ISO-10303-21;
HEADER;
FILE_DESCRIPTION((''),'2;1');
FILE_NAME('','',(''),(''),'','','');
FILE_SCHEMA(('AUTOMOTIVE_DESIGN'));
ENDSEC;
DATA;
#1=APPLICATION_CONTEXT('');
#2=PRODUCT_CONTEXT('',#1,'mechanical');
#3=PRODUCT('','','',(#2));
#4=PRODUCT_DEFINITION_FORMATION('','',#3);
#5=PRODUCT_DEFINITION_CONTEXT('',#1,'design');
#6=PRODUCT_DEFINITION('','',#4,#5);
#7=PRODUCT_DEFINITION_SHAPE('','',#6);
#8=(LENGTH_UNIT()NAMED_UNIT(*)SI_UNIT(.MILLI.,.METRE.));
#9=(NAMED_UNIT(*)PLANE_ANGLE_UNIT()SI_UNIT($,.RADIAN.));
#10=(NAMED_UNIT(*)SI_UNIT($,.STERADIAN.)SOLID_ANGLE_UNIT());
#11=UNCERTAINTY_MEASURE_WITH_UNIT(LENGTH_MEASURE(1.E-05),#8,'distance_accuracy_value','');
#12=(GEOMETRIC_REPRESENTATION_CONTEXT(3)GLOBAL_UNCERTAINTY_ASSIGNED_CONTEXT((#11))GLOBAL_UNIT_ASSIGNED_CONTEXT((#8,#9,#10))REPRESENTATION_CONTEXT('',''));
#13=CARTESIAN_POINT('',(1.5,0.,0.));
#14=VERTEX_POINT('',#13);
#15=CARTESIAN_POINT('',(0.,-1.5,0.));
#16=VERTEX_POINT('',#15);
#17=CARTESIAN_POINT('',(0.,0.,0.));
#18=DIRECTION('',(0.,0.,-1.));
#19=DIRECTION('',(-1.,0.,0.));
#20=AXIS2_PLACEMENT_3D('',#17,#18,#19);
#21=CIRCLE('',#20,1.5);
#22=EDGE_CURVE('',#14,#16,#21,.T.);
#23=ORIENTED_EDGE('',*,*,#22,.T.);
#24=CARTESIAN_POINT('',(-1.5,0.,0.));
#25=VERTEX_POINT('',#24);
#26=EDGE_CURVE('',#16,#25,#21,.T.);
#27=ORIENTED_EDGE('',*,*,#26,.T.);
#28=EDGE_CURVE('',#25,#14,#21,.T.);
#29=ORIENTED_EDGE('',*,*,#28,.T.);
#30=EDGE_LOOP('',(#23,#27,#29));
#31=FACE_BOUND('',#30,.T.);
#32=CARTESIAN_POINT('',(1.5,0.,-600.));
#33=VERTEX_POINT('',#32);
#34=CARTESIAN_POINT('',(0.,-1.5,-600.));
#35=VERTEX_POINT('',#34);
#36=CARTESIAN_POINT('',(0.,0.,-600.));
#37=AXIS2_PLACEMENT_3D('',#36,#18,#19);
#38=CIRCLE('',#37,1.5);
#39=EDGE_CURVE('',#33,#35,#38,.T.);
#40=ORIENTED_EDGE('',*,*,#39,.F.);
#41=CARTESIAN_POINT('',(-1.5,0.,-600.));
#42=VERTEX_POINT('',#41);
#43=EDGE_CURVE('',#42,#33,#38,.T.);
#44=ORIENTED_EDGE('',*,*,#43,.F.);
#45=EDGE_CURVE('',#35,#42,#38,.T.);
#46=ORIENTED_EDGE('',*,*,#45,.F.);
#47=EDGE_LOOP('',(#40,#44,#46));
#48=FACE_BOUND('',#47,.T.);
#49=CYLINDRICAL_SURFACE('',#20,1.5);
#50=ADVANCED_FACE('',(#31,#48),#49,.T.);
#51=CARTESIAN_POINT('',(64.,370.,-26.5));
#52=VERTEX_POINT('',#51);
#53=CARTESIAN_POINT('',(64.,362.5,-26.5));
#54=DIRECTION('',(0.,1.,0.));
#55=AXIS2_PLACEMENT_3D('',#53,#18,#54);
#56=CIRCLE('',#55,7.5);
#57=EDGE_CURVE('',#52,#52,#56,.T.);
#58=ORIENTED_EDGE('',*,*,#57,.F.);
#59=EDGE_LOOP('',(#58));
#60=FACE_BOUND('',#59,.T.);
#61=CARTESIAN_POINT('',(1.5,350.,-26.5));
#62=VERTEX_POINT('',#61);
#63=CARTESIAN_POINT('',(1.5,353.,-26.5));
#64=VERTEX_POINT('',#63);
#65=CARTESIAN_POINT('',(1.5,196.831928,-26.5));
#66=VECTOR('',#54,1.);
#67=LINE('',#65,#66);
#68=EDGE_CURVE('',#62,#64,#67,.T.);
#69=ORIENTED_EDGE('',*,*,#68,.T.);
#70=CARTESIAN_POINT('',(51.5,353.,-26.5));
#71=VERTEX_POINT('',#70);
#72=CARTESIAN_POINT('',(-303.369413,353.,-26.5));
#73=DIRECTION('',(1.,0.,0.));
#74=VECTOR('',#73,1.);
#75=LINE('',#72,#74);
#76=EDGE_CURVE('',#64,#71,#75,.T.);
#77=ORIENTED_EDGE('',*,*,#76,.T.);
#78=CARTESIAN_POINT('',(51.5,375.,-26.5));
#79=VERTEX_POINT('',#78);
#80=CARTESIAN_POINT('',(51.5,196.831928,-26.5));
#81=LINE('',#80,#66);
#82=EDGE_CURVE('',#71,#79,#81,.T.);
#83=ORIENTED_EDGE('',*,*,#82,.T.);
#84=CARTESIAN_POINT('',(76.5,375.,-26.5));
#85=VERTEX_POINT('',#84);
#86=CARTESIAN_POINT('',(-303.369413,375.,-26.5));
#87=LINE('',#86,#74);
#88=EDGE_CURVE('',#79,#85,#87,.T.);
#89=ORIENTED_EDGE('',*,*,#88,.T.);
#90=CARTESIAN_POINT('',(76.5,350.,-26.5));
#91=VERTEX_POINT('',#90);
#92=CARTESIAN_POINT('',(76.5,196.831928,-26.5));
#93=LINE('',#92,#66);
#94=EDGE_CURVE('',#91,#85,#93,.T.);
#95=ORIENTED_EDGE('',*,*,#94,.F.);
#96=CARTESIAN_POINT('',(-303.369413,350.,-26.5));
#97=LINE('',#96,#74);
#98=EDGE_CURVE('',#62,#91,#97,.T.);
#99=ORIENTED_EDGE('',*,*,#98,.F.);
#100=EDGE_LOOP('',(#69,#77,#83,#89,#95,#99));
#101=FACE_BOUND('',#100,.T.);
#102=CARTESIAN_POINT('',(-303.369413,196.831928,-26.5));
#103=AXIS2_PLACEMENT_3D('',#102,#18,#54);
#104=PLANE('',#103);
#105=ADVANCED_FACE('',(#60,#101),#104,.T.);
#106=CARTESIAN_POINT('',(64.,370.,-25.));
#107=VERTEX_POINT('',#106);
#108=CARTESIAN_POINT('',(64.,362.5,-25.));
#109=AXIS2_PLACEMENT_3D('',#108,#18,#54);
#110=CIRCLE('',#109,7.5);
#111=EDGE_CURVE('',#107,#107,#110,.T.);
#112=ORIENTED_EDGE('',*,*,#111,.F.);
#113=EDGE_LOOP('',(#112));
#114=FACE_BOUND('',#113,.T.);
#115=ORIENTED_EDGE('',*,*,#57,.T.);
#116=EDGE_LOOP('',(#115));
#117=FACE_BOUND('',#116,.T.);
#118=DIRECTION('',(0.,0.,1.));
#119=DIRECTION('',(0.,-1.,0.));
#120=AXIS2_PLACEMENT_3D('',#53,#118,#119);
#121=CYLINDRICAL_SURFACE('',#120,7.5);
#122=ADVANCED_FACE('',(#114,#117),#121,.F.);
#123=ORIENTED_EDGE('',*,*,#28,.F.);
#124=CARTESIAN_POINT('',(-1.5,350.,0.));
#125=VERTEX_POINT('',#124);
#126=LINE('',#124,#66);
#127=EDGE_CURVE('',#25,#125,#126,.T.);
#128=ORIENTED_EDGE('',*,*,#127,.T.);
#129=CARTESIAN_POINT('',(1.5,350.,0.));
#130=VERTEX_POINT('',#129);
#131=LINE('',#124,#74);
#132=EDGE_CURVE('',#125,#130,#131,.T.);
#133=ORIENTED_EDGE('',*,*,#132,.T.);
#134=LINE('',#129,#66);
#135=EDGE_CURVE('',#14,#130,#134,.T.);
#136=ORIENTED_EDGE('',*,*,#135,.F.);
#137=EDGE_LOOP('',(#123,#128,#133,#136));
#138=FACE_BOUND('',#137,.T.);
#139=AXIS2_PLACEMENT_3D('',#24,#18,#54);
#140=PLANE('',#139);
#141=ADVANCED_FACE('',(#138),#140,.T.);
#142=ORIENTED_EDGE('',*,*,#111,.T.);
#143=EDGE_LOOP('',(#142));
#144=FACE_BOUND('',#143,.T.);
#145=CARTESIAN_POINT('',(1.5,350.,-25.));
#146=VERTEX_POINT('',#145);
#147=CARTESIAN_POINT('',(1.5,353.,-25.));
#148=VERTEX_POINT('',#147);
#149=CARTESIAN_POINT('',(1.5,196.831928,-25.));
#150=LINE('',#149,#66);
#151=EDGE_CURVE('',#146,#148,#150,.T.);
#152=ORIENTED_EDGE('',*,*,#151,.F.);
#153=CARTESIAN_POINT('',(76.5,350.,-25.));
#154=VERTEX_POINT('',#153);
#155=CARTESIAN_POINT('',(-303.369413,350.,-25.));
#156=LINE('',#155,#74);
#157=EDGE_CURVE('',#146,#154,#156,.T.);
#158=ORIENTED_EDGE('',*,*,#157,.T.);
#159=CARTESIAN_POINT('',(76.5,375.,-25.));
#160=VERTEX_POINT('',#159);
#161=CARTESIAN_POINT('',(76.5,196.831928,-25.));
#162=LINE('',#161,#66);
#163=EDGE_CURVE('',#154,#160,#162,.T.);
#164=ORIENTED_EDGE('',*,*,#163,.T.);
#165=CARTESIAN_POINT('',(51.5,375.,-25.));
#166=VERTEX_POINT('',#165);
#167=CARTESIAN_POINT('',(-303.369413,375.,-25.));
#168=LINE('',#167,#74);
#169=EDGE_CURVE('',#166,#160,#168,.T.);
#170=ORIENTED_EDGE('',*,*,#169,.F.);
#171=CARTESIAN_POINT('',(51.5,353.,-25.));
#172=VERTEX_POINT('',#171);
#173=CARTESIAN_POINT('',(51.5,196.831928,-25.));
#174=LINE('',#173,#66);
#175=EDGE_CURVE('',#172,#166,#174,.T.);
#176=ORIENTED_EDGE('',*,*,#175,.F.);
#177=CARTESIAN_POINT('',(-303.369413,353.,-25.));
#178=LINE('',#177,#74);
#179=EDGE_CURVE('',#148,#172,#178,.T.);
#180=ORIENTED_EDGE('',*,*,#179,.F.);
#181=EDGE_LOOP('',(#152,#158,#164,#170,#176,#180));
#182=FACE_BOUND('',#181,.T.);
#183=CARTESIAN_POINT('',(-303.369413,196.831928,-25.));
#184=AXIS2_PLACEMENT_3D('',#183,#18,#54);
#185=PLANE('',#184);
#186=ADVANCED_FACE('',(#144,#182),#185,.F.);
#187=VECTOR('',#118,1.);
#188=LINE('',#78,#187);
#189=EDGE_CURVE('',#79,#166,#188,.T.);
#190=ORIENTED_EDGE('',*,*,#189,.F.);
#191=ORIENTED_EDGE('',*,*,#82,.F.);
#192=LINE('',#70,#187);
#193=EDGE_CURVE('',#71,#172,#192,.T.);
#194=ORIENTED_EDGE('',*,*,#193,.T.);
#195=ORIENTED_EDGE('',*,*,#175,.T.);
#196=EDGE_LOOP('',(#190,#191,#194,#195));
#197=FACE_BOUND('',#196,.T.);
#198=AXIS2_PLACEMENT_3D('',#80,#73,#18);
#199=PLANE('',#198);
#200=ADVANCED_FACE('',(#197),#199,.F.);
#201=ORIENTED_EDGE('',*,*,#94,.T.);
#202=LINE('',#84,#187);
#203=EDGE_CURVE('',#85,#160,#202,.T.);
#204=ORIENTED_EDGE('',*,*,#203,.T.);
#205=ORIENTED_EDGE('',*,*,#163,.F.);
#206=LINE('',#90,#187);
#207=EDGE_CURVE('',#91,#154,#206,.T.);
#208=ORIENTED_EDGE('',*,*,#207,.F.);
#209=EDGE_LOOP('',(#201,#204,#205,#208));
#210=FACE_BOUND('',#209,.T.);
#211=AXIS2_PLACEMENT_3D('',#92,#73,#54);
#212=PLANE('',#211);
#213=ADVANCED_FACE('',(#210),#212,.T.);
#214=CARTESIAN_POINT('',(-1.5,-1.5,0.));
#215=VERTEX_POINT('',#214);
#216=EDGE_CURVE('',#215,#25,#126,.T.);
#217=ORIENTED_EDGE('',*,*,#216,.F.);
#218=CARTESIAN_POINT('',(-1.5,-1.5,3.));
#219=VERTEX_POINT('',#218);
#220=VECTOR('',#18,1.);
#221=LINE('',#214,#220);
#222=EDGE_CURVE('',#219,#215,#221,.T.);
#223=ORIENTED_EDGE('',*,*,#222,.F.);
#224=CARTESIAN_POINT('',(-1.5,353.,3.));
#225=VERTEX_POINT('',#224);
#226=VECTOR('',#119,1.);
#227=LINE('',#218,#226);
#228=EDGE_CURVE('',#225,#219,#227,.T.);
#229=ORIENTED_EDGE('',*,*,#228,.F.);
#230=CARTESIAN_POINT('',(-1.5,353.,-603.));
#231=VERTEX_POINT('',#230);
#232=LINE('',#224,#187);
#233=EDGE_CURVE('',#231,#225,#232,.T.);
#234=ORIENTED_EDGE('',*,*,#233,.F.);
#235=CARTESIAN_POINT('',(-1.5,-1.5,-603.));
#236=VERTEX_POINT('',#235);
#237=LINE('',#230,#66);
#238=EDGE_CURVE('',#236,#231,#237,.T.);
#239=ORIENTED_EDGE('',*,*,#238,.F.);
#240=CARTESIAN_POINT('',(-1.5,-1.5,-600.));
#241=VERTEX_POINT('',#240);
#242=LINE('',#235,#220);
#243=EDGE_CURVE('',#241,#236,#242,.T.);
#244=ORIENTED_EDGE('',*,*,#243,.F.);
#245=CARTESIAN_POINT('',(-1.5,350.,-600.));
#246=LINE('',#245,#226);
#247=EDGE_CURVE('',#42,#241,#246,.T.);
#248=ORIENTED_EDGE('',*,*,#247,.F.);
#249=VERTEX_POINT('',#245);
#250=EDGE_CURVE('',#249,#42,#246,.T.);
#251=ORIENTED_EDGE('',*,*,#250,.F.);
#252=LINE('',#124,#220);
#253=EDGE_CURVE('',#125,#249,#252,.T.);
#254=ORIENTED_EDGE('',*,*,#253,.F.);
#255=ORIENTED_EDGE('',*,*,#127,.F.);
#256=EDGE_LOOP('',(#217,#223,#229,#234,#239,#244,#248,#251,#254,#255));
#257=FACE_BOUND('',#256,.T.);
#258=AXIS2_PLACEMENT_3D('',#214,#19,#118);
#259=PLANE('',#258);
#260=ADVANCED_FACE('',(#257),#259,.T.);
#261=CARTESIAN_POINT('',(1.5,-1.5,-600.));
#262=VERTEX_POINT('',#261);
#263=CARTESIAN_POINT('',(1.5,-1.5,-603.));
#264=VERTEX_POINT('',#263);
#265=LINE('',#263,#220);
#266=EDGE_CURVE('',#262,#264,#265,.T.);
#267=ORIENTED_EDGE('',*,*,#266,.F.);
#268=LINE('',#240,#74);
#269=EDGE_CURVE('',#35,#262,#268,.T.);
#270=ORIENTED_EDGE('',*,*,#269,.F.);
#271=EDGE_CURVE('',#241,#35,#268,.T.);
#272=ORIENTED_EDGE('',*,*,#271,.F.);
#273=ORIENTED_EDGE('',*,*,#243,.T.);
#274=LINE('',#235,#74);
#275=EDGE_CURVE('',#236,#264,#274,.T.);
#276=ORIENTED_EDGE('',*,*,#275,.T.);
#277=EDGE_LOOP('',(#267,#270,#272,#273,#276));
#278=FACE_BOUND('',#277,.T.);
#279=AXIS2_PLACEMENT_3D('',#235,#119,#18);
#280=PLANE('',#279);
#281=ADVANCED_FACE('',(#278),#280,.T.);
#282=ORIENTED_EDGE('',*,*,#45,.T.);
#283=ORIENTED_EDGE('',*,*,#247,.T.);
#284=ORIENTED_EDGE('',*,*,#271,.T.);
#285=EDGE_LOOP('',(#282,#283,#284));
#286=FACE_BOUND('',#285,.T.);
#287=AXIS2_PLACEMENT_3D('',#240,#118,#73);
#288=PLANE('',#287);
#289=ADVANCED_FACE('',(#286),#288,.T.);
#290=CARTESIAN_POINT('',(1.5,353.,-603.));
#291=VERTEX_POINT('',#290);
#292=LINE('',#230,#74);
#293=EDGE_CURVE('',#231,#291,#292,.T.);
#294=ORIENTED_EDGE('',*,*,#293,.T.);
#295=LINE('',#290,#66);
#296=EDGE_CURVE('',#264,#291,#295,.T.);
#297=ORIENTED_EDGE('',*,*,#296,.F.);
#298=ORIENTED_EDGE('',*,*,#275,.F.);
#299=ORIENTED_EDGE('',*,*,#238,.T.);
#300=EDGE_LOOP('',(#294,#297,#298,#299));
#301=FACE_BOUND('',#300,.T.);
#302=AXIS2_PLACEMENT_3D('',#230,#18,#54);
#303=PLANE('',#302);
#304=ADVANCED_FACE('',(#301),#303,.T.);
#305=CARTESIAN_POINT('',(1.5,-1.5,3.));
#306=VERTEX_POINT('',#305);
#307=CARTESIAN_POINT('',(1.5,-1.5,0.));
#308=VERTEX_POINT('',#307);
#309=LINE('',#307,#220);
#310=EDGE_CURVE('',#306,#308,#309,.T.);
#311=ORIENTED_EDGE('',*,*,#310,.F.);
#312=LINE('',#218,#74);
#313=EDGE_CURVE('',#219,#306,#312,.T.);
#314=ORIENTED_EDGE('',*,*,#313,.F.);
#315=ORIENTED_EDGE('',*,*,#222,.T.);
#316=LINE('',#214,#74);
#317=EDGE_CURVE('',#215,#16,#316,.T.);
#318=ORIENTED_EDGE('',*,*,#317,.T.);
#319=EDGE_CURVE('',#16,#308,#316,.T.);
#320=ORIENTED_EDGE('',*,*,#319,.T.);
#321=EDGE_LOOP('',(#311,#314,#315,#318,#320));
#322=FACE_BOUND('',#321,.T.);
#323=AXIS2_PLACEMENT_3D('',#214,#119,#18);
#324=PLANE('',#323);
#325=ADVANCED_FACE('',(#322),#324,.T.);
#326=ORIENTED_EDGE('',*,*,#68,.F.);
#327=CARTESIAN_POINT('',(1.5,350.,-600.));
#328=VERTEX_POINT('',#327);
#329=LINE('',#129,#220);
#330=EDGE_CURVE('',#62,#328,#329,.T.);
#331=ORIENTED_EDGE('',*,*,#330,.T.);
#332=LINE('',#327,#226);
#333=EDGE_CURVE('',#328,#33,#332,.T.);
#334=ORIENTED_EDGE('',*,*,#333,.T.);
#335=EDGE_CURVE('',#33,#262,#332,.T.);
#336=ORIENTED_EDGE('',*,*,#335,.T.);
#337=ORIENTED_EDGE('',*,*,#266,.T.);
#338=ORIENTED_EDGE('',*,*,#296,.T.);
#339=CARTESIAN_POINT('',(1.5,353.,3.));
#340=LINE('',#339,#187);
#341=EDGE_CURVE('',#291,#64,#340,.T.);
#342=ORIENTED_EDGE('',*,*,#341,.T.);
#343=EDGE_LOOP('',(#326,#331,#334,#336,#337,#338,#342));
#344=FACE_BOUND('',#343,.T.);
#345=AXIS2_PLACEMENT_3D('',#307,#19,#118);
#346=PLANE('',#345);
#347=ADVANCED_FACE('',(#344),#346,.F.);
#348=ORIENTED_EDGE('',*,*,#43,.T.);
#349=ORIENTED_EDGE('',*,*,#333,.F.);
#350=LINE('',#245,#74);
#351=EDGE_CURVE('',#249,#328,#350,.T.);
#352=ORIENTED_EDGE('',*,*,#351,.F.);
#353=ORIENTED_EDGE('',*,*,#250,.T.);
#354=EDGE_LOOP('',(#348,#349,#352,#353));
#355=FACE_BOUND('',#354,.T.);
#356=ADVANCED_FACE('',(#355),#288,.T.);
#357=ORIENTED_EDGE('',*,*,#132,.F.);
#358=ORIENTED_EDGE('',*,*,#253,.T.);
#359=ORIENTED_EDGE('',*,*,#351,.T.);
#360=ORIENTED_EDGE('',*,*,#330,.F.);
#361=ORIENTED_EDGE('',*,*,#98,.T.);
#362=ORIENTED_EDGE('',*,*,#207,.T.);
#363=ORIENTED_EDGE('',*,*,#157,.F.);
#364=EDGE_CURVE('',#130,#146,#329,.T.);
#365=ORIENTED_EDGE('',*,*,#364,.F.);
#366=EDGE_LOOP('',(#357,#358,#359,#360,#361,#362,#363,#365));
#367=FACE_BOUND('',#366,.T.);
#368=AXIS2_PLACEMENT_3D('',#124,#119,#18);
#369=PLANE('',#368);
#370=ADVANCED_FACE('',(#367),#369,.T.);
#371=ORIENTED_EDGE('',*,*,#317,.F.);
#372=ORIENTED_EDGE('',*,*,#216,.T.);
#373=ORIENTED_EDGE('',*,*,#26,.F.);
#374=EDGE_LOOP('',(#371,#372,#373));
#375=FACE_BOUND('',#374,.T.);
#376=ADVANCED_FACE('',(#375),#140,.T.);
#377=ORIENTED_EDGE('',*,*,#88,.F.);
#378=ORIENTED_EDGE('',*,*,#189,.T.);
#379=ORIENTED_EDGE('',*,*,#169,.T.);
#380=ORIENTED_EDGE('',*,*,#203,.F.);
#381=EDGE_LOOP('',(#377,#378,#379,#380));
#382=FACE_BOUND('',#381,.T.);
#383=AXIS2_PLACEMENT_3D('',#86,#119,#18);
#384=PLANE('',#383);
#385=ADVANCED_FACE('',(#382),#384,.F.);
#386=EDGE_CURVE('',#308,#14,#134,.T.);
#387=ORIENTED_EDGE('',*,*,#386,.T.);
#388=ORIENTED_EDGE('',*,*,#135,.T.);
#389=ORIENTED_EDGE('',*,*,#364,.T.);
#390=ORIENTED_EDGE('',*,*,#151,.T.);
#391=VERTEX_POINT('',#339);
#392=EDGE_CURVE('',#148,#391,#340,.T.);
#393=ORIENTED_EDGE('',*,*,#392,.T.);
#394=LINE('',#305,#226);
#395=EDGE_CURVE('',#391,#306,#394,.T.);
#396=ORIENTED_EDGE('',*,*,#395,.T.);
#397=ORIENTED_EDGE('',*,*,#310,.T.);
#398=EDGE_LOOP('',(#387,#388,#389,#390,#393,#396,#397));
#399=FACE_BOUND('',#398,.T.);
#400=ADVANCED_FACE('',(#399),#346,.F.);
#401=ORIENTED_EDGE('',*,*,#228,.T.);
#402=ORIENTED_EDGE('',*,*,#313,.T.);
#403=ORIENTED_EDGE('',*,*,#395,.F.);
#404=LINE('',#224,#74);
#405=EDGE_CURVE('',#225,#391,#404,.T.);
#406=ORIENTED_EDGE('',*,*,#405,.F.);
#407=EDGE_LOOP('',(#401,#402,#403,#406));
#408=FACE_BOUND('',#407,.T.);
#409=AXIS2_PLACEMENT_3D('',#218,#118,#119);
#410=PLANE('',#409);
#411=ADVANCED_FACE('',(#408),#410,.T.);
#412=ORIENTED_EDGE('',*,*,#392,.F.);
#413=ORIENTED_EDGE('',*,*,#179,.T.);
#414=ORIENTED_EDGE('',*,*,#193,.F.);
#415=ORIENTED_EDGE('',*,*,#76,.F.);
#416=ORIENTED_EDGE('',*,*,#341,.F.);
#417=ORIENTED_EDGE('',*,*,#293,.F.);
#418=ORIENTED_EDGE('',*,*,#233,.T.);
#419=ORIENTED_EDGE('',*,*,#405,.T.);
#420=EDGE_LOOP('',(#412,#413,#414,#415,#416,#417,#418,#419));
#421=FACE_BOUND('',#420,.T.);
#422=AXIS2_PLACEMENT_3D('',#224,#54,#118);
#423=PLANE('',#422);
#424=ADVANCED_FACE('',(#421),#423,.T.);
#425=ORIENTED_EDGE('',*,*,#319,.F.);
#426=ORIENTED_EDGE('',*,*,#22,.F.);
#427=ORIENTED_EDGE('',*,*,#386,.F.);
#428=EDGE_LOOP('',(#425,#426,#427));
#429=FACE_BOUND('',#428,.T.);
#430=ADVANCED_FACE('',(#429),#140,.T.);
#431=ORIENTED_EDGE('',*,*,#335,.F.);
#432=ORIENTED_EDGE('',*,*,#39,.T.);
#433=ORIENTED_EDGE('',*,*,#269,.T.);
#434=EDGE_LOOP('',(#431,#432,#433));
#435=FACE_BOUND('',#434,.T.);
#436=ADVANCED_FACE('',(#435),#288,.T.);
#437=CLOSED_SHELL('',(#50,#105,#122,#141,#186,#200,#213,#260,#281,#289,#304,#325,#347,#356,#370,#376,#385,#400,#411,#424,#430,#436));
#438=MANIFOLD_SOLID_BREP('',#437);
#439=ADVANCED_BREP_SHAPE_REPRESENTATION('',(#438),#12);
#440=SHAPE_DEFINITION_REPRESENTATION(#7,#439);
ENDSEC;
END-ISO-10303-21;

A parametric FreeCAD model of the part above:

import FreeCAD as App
import Part
import Sketcher
Q = App.Units.Quantity

doc = App.newDocument("Part")
params = doc.addObject("Spreadsheet::Sheet", "Params")
for row, (alias, value) in enumerate([
    ("sketch1_diameter", "3 mm"),
    ("pad1_length", "600 mm"),
    ("sketch2_height", "600 mm"),
    ("sketch2_height2", "3 mm"),
    ("sketch2_width", "351.5 mm"),
    ("sketch2_width2", "354.5 mm"),
    ("pad2_length", "1.5 mm"),
    ("pad2_length2", "1.5 mm"),
    ("sketch3_diameter", "15 mm"),
    ("sketch3_width", "50 mm"),
    ("sketch3_width2", "25 mm"),
    ("sketch3_height", "3 mm"),
    ("pad3_length", "1.5 mm"),
], start=1):
    params.set(f"A{row}", alias)
    params.set(f"B{row}", "=" + value)
    params.setAlias(f"B{row}", alias)

body = doc.addObject("PartDesign::Body", "Body")

# Sketch on XY plane
sketch1 = body.newObject("Sketcher::SketchObject", "Sketch")
sketch1.AttachmentSupport = (doc.getObject("XY_Plane"), [""])
sketch1.MapMode = "FlatFace"
sketch1.AttachmentOffset = App.Placement(App.Vector(0, 0, -600), App.Rotation())
sketch1.addGeometry(Part.Circle(App.Vector(0, 0, 0), App.Vector(0, 0, 1), 1.5), False)
sketch1.addConstraint([
    Sketcher.Constraint("Coincident", 0, 3, -1, 1),
    Sketcher.Constraint("Diameter", 0, Q("3 mm")),
])
sketch1.setExpression("Constraints[1]", "Params.sketch1_diameter")
pad1 = body.newObject("PartDesign::Pad", "Pad")
pad1.Profile = sketch1
pad1.setExpression("Length", "Params.pad1_length")

# Sketch on YZ plane
sketch2 = body.newObject("Sketcher::SketchObject", "Sketch001")
sketch2.AttachmentSupport = (doc.getObject("YZ_Plane"), [""])
sketch2.MapMode = "FlatFace"
sketch2.addGeometry([
    Part.LineSegment(App.Vector(-1.5, 0, 0), App.Vector(350, 0, 0)),  # 0
    Part.LineSegment(App.Vector(350, 0, 0), App.Vector(350, -600, 0)),  # 1
    Part.LineSegment(App.Vector(350, -600, 0), App.Vector(-1.5, -600, 0)),  # 2
    Part.LineSegment(App.Vector(-1.5, -600, 0), App.Vector(-1.5, -603, 0)),  # 3
    Part.LineSegment(App.Vector(-1.5, -603, 0), App.Vector(353, -603, 0)),  # 4
    Part.LineSegment(App.Vector(353, -603, 0), App.Vector(353, 3, 0)),  # 5
    Part.LineSegment(App.Vector(353, 3, 0), App.Vector(-1.5, 3, 0)),  # 6
    Part.LineSegment(App.Vector(-1.5, 3, 0), App.Vector(-1.5, 0, 0)),  # 7
], False)
sketch2.addConstraint([
    Sketcher.Constraint("Coincident", 0, 2, 1, 1),
    Sketcher.Constraint("Coincident", 1, 2, 2, 1),
    Sketcher.Constraint("Coincident", 2, 2, 3, 1),
    Sketcher.Constraint("Coincident", 3, 2, 4, 1),
    Sketcher.Constraint("Coincident", 4, 2, 5, 1),
    Sketcher.Constraint("Coincident", 5, 2, 6, 1),
    Sketcher.Constraint("Coincident", 6, 2, 7, 1),
    Sketcher.Constraint("Coincident", 7, 2, 0, 1),
    Sketcher.Constraint("Horizontal", 0),
    Sketcher.Constraint("Vertical", 1),
    Sketcher.Constraint("Horizontal", 2),
    Sketcher.Constraint("Vertical", 3),
    Sketcher.Constraint("Horizontal", 4),
    Sketcher.Constraint("Vertical", 5),
    Sketcher.Constraint("Horizontal", 6),
    Sketcher.Constraint("Vertical", 7),
    Sketcher.Constraint("PointOnObject", 0, 2, -1),
    Sketcher.Constraint("Vertical", 3, 2, 6, 2),
    Sketcher.Constraint("Equal", 3, 7),
    Sketcher.Constraint("DistanceY", 1, 2, 1, 1, Q("600 mm")),
    Sketcher.Constraint("DistanceY", 3, 2, 3, 1, Q("3 mm")),
    Sketcher.Constraint("DistanceX", 0, 1, 0, 2, Q("351.5 mm")),
    Sketcher.Constraint("DistanceX", 4, 1, 4, 2, Q("354.5 mm")),
    Sketcher.Constraint("DistanceX", -1, 1, 0, 2, Q("350 mm")),
])
sketch2.setExpression("Constraints[19]", "Params.sketch2_height")
sketch2.setExpression("Constraints[20]", "Params.sketch2_height2")
sketch2.setExpression("Constraints[21]", "Params.sketch2_width")
sketch2.setExpression("Constraints[22]", "Params.sketch2_width2")
pad2 = body.newObject("PartDesign::Pad", "Pad001")
pad2.Profile = sketch2
pad2.Type = "TwoLengths"
pad2.setExpression("Length", "Params.pad2_length")
pad2.setExpression("Length2", "Params.pad2_length2")

# Sketch on XY plane
sketch3 = body.newObject("Sketcher::SketchObject", "Sketch002")
sketch3.AttachmentSupport = (doc.getObject("XY_Plane"), [""])
sketch3.MapMode = "FlatFace"
sketch3.AttachmentOffset = App.Placement(App.Vector(0, 0, -25), App.Rotation())
sketch3.addGeometry([
    Part.LineSegment(App.Vector(1.5, 350, 0), App.Vector(1.5, 353, 0)),  # 0
    Part.LineSegment(App.Vector(1.5, 353, 0), App.Vector(51.5, 353, 0)),  # 1
    Part.LineSegment(App.Vector(51.5, 353, 0), App.Vector(51.5, 375, 0)),  # 2
    Part.LineSegment(App.Vector(51.5, 375, 0), App.Vector(76.5, 375, 0)),  # 3
    Part.LineSegment(App.Vector(76.5, 375, 0), App.Vector(76.5, 350, 0)),  # 4
    Part.LineSegment(App.Vector(76.5, 350, 0), App.Vector(1.5, 350, 0)),  # 5
    Part.Circle(App.Vector(64, 362.5, 0), App.Vector(0, 0, 1), 7.5),  # 6
], False)
sketch3.addConstraint([
    Sketcher.Constraint("Coincident", 0, 2, 1, 1),
    Sketcher.Constraint("Coincident", 1, 2, 2, 1),
    Sketcher.Constraint("Coincident", 2, 2, 3, 1),
    Sketcher.Constraint("Coincident", 3, 2, 4, 1),
    Sketcher.Constraint("Coincident", 4, 2, 5, 1),
    Sketcher.Constraint("Coincident", 5, 2, 0, 1),
    Sketcher.Constraint("Vertical", 0),
    Sketcher.Constraint("Horizontal", 1),
    Sketcher.Constraint("Vertical", 2),
    Sketcher.Constraint("Horizontal", 3),
    Sketcher.Constraint("Vertical", 4),
    Sketcher.Constraint("Horizontal", 5),
    Sketcher.Constraint("Equal", 3, 4),
    Sketcher.Constraint("Diameter", 6, Q("15 mm")),
    Sketcher.Constraint("DistanceX", 1, 1, 1, 2, Q("50 mm")),
    Sketcher.Constraint("DistanceX", 3, 1, 3, 2, Q("25 mm")),
    Sketcher.Constraint("DistanceY", 0, 1, 0, 2, Q("3 mm")),
    Sketcher.Constraint("DistanceX", -1, 1, 6, 3, Q("64 mm")),
    Sketcher.Constraint("DistanceY", -1, 1, 0, 2, Q("353 mm")),
    Sketcher.Constraint("DistanceY", -1, 1, 6, 3, Q("362.5 mm")),
    Sketcher.Constraint("DistanceX", -1, 1, 0, 2, Q("1.5 mm")),
])
sketch3.setExpression("Constraints[13]", "Params.sketch3_diameter")
sketch3.setExpression("Constraints[14]", "Params.sketch3_width")
sketch3.setExpression("Constraints[15]", "Params.sketch3_width2")
sketch3.setExpression("Constraints[16]", "Params.sketch3_height")
pad3 = body.newObject("PartDesign::Pad", "Pad002")
pad3.Profile = sketch3
pad3.setExpression("Length", "Params.pad3_length")
pad3.Reversed = True

doc.recompute()
